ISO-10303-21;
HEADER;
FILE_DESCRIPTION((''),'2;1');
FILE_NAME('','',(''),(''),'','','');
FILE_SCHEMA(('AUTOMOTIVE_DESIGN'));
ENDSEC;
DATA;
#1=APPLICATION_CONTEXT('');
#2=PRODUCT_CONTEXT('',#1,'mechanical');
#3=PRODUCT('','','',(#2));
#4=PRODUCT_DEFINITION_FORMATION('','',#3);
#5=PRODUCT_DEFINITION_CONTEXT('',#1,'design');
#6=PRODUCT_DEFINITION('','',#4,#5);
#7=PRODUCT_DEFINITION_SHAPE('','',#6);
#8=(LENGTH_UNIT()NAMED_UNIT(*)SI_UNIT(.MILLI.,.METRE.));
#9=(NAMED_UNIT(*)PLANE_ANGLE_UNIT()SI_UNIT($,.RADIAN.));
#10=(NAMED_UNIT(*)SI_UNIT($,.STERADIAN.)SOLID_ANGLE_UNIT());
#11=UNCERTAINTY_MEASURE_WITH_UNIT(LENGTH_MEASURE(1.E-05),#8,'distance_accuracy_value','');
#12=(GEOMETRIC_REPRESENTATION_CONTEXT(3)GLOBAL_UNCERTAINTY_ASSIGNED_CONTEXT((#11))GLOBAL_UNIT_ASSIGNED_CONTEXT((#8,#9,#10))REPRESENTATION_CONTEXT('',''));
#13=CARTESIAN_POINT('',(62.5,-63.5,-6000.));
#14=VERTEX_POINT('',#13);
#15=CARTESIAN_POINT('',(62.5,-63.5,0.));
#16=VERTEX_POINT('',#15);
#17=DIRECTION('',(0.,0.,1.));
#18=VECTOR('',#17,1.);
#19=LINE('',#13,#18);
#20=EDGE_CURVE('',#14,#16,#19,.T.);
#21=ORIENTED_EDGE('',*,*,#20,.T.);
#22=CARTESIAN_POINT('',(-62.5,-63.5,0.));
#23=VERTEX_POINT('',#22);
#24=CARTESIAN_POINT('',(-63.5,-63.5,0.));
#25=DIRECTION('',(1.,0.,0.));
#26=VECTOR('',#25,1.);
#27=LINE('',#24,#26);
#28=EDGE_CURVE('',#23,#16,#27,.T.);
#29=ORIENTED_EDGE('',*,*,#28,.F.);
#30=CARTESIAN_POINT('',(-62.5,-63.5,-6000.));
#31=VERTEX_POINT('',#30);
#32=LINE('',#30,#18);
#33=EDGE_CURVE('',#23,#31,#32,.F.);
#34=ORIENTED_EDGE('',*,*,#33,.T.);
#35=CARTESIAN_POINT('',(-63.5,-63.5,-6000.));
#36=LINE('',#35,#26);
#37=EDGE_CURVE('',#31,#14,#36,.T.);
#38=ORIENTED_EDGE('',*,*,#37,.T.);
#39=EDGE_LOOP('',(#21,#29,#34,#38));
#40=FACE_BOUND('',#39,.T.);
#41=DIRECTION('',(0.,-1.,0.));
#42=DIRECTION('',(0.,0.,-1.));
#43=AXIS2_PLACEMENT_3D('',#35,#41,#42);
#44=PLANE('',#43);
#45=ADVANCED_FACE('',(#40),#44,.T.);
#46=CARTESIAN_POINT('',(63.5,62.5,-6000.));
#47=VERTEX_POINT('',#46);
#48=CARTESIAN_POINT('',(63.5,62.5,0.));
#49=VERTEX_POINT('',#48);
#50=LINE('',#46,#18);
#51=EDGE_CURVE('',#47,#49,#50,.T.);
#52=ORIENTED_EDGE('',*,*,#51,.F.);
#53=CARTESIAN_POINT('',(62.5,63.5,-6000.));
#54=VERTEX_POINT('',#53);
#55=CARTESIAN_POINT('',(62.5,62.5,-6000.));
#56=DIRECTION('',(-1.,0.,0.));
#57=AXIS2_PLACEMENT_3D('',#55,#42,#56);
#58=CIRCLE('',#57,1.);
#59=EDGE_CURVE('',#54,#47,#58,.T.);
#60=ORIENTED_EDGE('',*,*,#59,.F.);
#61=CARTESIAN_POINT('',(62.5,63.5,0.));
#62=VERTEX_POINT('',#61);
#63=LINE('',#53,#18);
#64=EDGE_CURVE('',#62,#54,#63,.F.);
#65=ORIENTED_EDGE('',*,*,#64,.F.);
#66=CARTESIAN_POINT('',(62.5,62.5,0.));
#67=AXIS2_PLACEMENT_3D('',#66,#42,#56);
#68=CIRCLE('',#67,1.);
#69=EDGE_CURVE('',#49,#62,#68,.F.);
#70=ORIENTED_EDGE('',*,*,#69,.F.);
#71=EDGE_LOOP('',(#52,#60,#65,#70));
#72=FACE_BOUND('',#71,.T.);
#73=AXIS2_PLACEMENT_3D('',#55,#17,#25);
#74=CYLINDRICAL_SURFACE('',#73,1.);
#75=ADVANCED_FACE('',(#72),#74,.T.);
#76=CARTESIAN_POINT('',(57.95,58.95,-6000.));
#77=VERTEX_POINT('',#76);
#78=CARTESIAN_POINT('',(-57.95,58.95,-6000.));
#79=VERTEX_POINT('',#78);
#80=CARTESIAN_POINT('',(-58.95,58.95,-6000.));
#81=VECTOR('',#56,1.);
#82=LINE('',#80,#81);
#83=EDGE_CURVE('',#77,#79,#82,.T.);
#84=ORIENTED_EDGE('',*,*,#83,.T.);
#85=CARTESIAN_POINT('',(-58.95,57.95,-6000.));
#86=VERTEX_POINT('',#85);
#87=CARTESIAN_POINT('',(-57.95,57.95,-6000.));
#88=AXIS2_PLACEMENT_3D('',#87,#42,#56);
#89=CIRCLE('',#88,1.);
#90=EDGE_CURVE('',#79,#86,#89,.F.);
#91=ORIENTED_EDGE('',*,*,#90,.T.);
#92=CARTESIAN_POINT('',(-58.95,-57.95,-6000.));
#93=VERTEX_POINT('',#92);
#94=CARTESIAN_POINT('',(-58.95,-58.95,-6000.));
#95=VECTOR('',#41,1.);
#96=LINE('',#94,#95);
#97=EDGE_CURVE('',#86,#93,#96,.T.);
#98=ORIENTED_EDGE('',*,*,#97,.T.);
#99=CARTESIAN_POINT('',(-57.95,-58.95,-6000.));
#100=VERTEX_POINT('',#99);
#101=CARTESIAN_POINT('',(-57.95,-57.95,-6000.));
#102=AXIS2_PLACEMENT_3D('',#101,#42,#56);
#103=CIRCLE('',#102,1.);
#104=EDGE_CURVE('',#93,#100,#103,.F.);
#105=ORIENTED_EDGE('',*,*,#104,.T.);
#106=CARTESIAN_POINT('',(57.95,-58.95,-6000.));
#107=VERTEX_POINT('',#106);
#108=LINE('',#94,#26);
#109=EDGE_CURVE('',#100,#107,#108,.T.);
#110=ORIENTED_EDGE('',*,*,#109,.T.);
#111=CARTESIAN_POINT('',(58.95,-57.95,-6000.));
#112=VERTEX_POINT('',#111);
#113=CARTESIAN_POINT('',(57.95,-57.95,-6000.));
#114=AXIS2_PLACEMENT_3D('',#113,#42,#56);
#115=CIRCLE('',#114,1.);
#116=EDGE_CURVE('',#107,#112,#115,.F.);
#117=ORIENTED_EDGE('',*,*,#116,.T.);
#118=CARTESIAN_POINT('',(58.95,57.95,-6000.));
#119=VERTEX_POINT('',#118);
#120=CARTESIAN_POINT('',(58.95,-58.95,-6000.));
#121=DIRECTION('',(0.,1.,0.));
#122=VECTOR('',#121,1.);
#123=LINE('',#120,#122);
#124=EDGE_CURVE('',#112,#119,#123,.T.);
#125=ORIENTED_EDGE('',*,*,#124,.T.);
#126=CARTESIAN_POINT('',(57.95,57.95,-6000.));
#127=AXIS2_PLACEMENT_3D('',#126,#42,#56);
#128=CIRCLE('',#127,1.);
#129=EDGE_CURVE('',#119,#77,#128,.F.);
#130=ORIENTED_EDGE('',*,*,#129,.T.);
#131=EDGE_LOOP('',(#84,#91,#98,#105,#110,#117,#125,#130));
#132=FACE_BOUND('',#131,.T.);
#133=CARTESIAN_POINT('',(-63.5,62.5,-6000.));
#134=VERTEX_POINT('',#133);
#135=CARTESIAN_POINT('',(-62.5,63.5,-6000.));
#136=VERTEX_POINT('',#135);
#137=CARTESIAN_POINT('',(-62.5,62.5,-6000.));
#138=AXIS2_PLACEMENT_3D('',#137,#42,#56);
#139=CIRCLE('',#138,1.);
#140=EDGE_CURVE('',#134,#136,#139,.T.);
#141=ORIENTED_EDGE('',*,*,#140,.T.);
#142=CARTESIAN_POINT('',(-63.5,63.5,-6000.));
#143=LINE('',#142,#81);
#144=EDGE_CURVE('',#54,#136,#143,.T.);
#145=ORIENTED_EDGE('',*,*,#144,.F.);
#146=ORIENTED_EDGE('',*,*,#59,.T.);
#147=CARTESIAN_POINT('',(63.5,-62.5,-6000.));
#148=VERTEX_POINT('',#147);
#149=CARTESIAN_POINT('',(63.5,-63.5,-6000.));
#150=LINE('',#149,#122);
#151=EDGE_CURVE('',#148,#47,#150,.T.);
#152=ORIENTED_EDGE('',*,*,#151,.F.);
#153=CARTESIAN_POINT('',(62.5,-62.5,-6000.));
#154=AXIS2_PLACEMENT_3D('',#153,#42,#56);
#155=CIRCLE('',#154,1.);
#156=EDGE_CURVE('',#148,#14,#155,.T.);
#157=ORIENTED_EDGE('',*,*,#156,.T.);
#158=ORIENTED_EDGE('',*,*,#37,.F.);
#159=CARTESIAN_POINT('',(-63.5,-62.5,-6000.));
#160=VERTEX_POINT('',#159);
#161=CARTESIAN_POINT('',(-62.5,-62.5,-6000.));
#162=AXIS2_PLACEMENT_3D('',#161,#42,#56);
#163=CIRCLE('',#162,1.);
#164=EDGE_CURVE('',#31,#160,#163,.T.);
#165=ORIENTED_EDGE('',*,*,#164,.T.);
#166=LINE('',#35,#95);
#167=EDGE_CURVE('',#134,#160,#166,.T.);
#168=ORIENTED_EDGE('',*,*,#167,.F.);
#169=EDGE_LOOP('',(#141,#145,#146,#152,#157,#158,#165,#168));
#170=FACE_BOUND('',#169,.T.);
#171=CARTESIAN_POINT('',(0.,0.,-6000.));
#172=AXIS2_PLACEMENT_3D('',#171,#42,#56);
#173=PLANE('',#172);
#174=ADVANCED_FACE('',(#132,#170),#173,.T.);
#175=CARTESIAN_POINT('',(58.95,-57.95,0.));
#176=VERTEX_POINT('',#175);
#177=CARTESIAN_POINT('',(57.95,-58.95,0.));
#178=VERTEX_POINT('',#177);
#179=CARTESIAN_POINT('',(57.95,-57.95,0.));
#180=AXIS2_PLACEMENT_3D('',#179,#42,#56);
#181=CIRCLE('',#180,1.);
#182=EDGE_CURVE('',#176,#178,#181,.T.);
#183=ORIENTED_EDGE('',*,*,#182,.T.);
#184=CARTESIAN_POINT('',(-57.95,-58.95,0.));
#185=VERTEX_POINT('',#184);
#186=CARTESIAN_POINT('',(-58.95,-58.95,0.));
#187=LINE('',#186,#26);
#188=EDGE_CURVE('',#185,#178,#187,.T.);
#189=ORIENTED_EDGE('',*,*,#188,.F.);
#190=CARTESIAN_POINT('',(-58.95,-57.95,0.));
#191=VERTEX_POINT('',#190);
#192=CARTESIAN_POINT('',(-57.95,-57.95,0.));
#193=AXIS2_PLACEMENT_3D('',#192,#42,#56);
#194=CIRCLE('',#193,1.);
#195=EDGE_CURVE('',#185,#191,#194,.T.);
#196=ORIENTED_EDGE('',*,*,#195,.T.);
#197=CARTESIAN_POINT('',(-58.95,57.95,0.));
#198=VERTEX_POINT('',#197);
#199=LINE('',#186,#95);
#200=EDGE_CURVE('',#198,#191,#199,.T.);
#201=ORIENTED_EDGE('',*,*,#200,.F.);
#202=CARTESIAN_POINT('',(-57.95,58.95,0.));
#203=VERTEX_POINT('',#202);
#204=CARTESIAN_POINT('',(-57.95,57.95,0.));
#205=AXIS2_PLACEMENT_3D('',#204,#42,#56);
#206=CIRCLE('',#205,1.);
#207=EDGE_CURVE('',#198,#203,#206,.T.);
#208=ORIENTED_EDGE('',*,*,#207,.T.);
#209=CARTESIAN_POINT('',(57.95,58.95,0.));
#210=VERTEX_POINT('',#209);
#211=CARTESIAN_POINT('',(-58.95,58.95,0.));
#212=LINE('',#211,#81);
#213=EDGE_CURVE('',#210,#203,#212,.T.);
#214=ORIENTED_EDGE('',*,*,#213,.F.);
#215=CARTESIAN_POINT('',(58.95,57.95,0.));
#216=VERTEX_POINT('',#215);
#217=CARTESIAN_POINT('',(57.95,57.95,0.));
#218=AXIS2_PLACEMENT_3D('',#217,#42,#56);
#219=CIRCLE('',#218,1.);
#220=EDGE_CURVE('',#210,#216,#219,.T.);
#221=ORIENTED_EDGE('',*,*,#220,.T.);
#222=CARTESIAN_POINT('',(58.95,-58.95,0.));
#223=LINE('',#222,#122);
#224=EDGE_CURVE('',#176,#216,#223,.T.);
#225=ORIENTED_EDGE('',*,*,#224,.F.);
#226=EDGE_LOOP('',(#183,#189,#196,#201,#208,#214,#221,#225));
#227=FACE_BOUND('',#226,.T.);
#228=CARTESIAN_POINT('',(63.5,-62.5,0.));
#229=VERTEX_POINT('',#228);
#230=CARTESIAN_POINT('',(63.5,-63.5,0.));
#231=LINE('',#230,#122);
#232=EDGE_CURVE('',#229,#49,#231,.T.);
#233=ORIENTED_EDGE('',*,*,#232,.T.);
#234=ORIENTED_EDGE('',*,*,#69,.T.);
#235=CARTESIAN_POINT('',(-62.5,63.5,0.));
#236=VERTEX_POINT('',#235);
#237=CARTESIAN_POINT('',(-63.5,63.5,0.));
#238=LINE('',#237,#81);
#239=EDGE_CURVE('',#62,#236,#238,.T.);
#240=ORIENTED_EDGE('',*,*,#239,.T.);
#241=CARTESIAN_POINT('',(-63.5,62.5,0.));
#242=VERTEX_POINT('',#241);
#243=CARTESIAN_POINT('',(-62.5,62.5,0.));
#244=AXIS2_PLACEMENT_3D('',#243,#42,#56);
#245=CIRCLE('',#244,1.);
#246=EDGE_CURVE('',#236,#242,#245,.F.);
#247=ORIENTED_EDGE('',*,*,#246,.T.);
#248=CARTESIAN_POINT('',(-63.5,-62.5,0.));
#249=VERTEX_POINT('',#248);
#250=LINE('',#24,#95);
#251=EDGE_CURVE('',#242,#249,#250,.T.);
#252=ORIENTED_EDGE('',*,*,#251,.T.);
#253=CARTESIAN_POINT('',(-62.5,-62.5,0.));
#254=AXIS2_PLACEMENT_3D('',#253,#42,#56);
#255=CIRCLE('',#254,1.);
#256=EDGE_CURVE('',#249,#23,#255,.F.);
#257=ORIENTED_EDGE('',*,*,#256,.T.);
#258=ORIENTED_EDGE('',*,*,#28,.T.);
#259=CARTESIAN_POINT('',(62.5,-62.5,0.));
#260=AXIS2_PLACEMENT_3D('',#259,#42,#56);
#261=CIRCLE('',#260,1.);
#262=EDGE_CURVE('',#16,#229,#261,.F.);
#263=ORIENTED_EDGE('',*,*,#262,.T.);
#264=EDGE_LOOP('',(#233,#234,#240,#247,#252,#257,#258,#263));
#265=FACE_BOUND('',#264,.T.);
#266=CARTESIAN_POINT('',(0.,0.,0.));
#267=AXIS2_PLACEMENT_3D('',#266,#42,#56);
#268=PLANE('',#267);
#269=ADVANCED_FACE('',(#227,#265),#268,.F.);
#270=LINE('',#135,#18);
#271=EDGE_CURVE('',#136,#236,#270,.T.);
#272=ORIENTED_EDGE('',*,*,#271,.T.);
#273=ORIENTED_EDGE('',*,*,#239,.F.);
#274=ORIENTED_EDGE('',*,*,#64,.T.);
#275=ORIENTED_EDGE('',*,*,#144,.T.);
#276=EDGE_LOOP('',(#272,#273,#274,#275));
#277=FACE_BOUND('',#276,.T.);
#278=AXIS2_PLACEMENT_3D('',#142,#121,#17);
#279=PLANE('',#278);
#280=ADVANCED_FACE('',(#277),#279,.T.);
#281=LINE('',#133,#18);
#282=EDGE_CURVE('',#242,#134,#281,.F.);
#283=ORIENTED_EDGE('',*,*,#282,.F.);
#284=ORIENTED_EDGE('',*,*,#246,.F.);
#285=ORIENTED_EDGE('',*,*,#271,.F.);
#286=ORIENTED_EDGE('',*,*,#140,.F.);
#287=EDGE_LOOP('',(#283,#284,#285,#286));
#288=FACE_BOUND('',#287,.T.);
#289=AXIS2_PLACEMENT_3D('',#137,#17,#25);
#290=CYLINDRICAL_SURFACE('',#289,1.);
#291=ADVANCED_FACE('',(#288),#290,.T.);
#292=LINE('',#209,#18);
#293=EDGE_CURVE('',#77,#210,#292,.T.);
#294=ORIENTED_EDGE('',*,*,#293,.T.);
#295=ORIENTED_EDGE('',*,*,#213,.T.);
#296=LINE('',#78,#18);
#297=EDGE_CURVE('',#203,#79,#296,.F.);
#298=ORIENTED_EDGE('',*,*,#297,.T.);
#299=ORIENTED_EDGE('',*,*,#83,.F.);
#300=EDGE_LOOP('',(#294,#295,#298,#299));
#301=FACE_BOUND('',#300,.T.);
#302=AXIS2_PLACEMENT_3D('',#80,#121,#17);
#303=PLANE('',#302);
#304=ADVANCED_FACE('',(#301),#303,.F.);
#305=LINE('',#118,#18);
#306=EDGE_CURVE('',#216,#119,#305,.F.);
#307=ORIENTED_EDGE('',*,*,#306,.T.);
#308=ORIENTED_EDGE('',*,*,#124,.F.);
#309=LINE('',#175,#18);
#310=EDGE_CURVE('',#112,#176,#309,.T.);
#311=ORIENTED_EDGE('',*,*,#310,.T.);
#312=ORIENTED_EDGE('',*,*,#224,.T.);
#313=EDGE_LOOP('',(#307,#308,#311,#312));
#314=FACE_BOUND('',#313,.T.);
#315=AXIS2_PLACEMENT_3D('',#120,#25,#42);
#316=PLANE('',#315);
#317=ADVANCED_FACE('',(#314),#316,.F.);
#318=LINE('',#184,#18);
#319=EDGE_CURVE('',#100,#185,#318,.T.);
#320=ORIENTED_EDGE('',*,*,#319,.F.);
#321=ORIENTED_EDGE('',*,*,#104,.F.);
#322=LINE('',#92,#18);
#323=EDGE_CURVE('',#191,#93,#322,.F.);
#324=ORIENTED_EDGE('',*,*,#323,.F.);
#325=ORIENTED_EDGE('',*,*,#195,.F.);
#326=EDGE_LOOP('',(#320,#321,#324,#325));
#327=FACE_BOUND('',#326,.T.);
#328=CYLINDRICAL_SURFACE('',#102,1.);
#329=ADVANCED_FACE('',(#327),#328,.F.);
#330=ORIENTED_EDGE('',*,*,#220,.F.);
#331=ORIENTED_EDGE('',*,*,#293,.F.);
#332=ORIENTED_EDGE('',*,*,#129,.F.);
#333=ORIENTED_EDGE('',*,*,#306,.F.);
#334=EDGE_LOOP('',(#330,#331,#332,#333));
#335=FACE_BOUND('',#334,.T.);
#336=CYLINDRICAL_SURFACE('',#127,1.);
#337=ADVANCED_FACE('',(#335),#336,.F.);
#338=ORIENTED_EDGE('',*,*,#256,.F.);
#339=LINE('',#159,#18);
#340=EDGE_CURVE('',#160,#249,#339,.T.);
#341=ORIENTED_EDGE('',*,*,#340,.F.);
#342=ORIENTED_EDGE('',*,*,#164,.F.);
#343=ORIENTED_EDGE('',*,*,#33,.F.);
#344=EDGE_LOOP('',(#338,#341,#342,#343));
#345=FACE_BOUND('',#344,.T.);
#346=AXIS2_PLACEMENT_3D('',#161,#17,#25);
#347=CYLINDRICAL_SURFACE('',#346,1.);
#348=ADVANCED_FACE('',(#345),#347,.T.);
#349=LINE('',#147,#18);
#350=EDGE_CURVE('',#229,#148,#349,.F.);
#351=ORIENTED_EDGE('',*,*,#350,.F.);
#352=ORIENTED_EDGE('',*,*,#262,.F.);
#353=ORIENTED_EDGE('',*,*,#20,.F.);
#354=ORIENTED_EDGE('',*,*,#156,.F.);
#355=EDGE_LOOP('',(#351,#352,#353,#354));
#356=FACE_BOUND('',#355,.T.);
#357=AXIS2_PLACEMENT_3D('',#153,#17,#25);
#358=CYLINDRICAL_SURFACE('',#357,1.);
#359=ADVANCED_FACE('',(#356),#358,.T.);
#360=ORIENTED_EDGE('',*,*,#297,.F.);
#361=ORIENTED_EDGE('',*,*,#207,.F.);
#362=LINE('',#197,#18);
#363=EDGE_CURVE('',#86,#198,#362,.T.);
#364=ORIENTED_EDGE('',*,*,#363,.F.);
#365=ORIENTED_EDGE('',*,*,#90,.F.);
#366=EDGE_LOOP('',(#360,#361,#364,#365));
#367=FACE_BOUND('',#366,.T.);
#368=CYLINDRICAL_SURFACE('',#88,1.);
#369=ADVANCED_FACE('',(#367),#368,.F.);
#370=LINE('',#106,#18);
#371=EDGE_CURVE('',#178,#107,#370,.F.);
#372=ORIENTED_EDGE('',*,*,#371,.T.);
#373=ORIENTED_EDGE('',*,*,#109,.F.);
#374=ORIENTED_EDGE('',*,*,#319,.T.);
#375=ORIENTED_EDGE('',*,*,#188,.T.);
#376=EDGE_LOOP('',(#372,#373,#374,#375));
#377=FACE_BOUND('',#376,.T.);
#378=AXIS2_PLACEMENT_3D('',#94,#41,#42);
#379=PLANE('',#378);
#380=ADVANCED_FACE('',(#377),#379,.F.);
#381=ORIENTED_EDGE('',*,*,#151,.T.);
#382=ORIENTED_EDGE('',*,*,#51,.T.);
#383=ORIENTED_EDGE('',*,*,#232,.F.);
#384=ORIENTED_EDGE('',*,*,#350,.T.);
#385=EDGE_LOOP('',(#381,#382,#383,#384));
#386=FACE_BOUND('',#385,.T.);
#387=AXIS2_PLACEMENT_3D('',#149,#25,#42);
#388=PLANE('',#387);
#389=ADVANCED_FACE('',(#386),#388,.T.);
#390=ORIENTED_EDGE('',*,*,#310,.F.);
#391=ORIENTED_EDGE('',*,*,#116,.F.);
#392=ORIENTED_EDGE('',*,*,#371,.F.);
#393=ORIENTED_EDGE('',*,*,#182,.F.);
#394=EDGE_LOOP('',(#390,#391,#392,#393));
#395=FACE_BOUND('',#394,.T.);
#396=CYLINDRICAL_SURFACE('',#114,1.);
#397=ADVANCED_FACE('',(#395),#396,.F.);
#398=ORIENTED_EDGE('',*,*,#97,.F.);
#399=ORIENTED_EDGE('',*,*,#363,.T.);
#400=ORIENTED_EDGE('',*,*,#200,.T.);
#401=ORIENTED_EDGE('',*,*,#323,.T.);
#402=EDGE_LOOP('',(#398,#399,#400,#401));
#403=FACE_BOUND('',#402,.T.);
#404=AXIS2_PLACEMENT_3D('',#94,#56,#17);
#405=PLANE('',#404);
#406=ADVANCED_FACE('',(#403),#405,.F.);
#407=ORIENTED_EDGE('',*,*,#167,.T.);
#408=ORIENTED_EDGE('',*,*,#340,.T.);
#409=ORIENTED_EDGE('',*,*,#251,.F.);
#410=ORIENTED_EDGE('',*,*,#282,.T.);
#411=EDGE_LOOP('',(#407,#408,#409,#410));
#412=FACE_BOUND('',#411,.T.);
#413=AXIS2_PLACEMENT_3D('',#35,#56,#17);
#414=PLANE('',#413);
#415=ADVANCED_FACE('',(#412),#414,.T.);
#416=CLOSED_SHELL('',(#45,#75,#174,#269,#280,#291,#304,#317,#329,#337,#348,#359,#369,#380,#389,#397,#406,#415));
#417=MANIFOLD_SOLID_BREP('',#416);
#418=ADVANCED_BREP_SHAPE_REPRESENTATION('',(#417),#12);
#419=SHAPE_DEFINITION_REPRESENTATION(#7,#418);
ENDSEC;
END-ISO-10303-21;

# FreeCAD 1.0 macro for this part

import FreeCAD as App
import Part
import Sketcher

V = App.Vector
Q = App.Units.Quantity


def edges_at(feature, points):
    """Names of the edges that pass closest to the given points."""
    edges = feature.Shape.Edges
    near = lambda p: min(range(len(edges)), key=lambda i: edges[i].distToShape(Part.Vertex(*p))[0])
    return sorted({f"Edge{near(p) + 1}" for p in points})


def add_polygon(sketch, points):
    """Adds a closed chain of lines whose ends are joined by coincident constraints."""
    first, n = sketch.GeometryCount, len(points)
    for a, b in zip(points, points[1:] + points[:1]):
        sketch.addGeometry(Part.LineSegment(App.Vector(*a, 0), App.Vector(*b, 0)), False)
    for i in range(n):
        sketch.addConstraint(Sketcher.Constraint("Coincident", first + i, 2, first + (i + 1) % n, 1))

doc = App.newDocument("Part")
body = doc.addObject("PartDesign::Body", "Body")

# Sketch on XY plane
sketch1 = doc.addObject("Sketcher::SketchObject", "Sketch")
body.addObject(sketch1)
sketch1.AttachmentSupport = (doc.XY_Plane, [""])
sketch1.MapMode = "FlatFace"
add_polygon(sketch1, [(-64, 64), (-64, -64), (64, -64), (64, 64)])  # lines 0-3
add_polygon(sketch1, [(59, -59), (-59, -59), (-59, 59), (59, 59)])  # lines 4-7
sketch1.addConstraint([
    Sketcher.Constraint("Vertical", 0),
    Sketcher.Constraint("Horizontal", 1),
    Sketcher.Constraint("Vertical", 2),
    Sketcher.Constraint("Horizontal", 3),
    Sketcher.Constraint("Horizontal", 4),
    Sketcher.Constraint("Vertical", 5),
    Sketcher.Constraint("Horizontal", 6),
    Sketcher.Constraint("Vertical", 7),
    Sketcher.Constraint("Symmetric", 0, 2, 2, 2, -1, 1),
    Sketcher.Constraint("Symmetric", 4, 2, 6, 2, -1, 1),
    Sketcher.Constraint("Equal", 3, 0),
    Sketcher.Constraint("Equal", 6, 5),
    Sketcher.Constraint("DistanceX", 1, 1, 1, 2, Q("127 mm")),
    Sketcher.Constraint("DistanceX", 4, 2, 4, 1, Q("117.9 mm")),
])
pad1 = doc.addObject("PartDesign::Pad", "Pad")
body.addObject(pad1)
pad1.Profile = sketch1
pad1.Length = 6000
pad1.Reversed = True
doc.recompute()

fillet = doc.addObject("PartDesign::Fillet", "Fillet")
body.addObject(fillet)
fillet.Base = (pad1, edges_at(pad1, [
    (58.95, -58.95, -3000),
    (-58.95, -58.95, -3000),
    (-58.95, 58.95, -3000),
    (58.95, 58.95, -3000),
    (63.5, -63.5, -3000),
    (-63.5, -63.5, -3000),
    (-63.5, 63.5, -3000),
    (63.5, 63.5, -3000),
]))
fillet.Radius = 1

doc.recompute()
